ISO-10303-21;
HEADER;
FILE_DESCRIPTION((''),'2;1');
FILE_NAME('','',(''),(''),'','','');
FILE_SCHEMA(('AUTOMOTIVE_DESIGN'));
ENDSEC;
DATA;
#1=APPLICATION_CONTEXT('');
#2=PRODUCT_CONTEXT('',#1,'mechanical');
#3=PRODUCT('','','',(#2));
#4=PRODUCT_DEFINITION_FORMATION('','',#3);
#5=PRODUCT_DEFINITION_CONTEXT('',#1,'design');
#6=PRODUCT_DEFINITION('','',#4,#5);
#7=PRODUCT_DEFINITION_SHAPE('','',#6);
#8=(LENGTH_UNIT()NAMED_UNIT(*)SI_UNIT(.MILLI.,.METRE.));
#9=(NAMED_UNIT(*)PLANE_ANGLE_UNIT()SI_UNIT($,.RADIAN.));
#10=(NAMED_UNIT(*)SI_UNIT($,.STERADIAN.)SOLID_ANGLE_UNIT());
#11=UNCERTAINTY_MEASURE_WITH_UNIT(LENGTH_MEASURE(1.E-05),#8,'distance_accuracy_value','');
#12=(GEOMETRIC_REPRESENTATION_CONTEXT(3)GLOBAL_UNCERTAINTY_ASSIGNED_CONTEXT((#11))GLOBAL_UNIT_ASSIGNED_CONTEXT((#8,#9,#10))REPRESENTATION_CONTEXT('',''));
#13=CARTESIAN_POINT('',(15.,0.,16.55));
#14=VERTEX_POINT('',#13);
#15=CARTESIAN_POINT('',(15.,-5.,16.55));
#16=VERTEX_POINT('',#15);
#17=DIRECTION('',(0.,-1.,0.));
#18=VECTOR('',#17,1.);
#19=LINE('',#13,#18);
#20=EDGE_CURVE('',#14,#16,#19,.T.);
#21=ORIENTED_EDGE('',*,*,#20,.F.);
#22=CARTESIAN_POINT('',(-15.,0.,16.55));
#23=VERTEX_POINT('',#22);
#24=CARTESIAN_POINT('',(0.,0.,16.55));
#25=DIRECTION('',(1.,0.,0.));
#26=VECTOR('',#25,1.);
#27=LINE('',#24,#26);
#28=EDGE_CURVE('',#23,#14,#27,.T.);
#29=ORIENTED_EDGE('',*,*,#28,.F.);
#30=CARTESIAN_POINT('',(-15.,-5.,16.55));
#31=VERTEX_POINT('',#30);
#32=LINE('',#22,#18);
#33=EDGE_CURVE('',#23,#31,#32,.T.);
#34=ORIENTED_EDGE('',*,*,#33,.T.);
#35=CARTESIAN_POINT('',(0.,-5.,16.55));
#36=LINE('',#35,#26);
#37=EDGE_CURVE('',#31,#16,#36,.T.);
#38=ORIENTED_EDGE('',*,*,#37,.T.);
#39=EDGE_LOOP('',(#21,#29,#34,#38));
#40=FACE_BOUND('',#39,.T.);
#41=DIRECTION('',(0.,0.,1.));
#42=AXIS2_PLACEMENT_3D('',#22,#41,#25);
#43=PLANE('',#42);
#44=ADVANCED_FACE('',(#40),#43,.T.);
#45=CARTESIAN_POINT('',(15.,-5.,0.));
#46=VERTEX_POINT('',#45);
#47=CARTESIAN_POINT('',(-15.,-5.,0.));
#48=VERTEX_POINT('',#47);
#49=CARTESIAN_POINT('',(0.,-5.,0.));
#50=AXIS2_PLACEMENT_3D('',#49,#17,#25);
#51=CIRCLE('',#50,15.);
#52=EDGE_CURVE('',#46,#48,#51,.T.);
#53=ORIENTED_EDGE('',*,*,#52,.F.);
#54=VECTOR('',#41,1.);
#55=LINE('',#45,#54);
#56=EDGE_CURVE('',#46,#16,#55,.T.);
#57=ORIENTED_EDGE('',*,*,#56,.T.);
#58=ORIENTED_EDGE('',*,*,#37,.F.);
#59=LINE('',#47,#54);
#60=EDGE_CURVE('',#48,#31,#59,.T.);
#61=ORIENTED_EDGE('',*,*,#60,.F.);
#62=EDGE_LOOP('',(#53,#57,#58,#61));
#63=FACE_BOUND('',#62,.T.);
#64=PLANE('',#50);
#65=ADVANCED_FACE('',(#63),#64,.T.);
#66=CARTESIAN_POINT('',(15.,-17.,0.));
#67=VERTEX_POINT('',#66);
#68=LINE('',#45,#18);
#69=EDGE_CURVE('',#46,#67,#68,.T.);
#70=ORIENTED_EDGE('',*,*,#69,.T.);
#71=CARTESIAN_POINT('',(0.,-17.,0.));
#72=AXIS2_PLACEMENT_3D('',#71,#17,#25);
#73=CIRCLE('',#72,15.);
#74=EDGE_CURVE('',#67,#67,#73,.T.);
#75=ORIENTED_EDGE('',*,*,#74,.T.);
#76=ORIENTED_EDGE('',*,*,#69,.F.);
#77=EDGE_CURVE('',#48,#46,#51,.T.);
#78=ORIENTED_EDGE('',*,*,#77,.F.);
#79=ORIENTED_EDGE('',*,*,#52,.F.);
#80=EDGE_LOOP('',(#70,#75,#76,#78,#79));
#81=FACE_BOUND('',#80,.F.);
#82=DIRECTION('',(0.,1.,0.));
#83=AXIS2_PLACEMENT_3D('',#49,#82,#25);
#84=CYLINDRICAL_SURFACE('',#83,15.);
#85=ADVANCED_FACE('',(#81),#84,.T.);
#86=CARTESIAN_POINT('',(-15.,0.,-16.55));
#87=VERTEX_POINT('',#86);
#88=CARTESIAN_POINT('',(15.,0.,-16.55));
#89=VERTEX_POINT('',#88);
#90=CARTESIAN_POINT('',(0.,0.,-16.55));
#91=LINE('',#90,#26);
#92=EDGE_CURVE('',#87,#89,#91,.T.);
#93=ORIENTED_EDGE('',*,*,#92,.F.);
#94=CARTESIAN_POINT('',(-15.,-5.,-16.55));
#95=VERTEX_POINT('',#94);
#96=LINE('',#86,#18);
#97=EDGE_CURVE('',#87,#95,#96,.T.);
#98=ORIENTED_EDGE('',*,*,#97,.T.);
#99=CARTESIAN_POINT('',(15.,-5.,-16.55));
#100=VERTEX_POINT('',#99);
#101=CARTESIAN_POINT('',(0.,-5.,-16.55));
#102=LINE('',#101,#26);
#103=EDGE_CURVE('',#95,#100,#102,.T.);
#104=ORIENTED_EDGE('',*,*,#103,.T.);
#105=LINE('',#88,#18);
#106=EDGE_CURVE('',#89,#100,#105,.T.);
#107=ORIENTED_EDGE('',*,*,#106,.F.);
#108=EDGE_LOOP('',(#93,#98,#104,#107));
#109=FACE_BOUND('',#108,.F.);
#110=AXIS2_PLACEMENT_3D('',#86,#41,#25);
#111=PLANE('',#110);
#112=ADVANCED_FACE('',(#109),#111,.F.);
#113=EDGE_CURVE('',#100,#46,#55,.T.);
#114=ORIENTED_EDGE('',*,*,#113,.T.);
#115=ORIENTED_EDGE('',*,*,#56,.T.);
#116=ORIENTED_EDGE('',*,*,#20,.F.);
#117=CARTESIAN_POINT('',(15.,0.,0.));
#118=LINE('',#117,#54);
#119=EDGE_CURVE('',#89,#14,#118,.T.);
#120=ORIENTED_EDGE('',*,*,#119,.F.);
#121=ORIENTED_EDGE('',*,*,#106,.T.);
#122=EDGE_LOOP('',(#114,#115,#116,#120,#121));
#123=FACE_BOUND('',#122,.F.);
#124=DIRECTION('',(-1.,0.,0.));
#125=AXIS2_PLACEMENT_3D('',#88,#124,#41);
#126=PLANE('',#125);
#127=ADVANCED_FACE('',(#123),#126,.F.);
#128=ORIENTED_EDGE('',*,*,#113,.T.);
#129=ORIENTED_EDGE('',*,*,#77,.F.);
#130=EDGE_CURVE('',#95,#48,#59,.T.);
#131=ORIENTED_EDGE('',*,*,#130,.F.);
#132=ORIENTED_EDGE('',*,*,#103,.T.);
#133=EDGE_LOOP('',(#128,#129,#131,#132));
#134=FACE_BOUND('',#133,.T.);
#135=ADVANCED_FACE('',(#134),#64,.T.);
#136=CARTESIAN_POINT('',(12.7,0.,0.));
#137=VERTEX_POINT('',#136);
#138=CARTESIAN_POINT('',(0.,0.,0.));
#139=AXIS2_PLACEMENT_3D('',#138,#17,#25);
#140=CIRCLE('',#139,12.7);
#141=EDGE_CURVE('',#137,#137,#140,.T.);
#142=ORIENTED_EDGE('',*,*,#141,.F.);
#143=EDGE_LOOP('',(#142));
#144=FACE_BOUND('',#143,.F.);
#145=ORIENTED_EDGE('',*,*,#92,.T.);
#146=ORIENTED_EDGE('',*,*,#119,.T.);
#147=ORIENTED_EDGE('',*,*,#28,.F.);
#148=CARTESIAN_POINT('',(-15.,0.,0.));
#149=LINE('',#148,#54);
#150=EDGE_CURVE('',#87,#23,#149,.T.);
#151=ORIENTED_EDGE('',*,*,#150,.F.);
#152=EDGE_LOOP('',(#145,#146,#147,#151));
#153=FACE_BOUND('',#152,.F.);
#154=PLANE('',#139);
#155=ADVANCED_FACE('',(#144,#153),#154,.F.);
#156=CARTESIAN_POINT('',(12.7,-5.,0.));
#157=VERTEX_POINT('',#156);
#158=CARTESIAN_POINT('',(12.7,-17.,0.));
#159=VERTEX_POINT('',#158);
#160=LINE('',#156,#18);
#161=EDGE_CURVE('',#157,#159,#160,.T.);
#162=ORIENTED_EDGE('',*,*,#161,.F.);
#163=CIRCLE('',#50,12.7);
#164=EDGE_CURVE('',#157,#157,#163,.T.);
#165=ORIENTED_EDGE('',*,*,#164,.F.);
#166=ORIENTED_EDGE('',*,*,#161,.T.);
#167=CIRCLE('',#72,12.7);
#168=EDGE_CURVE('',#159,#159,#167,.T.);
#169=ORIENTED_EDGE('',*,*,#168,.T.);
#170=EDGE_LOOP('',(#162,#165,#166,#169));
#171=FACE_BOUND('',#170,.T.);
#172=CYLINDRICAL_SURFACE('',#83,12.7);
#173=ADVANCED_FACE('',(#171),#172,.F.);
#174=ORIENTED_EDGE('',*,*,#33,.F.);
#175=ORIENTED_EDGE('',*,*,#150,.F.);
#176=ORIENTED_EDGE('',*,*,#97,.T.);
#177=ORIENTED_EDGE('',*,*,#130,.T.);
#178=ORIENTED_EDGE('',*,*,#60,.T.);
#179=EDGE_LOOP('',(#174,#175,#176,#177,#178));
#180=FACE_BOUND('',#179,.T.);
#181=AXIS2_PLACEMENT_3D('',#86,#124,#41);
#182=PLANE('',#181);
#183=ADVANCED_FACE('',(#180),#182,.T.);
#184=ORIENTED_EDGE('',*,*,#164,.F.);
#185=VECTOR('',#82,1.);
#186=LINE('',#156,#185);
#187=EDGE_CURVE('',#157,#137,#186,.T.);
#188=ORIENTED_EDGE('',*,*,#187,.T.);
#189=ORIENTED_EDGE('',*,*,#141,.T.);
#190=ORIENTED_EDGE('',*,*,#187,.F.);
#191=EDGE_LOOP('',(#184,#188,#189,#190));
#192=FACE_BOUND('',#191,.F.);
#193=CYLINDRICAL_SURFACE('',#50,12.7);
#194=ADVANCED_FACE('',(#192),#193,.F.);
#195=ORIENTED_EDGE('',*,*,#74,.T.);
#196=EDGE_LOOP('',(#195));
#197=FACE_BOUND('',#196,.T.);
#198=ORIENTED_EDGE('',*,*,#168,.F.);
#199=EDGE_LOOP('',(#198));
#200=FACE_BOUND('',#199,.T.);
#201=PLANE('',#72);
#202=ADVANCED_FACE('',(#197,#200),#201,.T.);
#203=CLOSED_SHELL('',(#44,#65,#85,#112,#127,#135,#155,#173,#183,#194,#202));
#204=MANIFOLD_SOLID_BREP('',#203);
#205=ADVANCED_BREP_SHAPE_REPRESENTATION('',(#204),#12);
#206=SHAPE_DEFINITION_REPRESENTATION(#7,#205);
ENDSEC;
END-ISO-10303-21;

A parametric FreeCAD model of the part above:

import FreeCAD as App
import Part
import Sketcher
from FreeCAD import Vector
Q = App.Units.Quantity


def add_polygon(sketch, points):
    """Adds a closed chain of lines whose ends are joined by coincident constraints."""
    first, n = sketch.GeometryCount, len(points)
    for a, b in zip(points, points[1:] + points[:1]):
        sketch.addGeometry(Part.LineSegment(App.Vector(*a, 0), App.Vector(*b, 0)), False)
    for i in range(n):
        sketch.addConstraint(Sketcher.Constraint("Coincident", first + i, 2, first + (i + 1) % n, 1))

doc = App.newDocument("Part")
params = doc.addObject("Spreadsheet::Sheet", "Params")
for row, (alias, value) in enumerate([
    ("sketch1_width", "30 mm"),
    ("sketch1_height", "33.1 mm"),
    ("pad1_length", "5 mm"),
    ("sketch2_diameter", "30 mm"),
    ("sketch2_diameter2", "25.4 mm"),
    ("pad2_length", "12 mm"),
    ("sketch3_diameter", "25.4 mm"),
    ("pocket1_length", "25 mm"),
], start=1):
    params.set(f"A{row}", alias)
    params.set(f"B{row}", "=" + value)
    params.setAlias(f"B{row}", alias)

body = doc.addObject("PartDesign::Body", "Body")

sketch1 = doc.addObject("Sketcher::SketchObject", "Sketch")
body.addObject(sketch1)
sketch1.AttachmentSupport = (doc.XZ_Plane, [""])
sketch1.MapMode = "FlatFace"
add_polygon(sketch1, [(-15, 16.55), (-15, -16.55), (15, -16.55), (15, 16.55)])
sketch1.addConstraint([
    Sketcher.Constraint("Vertical", 0),
    Sketcher.Constraint("Horizontal", 1),
    Sketcher.Constraint("Vertical", 2),
    Sketcher.Constraint("Horizontal", 3),
    Sketcher.Constraint("Symmetric", 0, 2, 2, 2, -1, 1),
    Sketcher.Constraint("DistanceX", 1, 1, 1, 2, Q("30 mm")),
    Sketcher.Constraint("DistanceY", 0, 2, 0, 1, Q("33.1 mm")),
])
sketch1.setExpression("Constraints[9]", "Params.sketch1_width")
sketch1.setExpression("Constraints[10]", "Params.sketch1_height")
pad1 = doc.addObject("PartDesign::Pad", "Pad")
body.addObject(pad1)
pad1.Profile = sketch1
pad1.setExpression("Length", "Params.pad1_length")

sketch2 = doc.addObject("Sketcher::SketchObject", "Sketch001")
body.addObject(sketch2)
sketch2.AttachmentSupport = (doc.XZ_Plane, [""])
sketch2.MapMode = "FlatFace"
sketch2.AttachmentOffset = App.Placement(Vector(0, 0, 5), App.Rotation())
sketch2.addGeometry([
    Part.Circle(Vector(0, 0, 0), Vector(0, 0, 1), 15),
    Part.Circle(Vector(0, 0, 0), Vector(0, 0, 1), 12.7),
], False)
sketch2.addConstraint([
    Sketcher.Constraint("Coincident", 0, 3, -1, 1),
    Sketcher.Constraint("Coincident", 1, 3, -1, 1),
    Sketcher.Constraint("Diameter", 0, Q("30 mm")),
    Sketcher.Constraint("Diameter", 1, Q("25.4 mm")),
])
sketch2.setExpression("Constraints[2]", "Params.sketch2_diameter")
sketch2.setExpression("Constraints[3]", "Params.sketch2_diameter2")
pad2 = doc.addObject("PartDesign::Pad", "Pad001")
body.addObject(pad2)
pad2.Profile = sketch2
pad2.setExpression("Length", "Params.pad2_length")

sketch3 = doc.addObject("Sketcher::SketchObject", "Sketch002")
body.addObject(sketch3)
sketch3.AttachmentSupport = (doc.XZ_Plane, [""])
sketch3.MapMode = "FlatFace"
sketch3.AttachmentOffset = App.Placement(Vector(0, 0, 5), App.Rotation())
sketch3.addGeometry(Part.Circle(Vector(0, 0, 0), Vector(0, 0, 1), 12.7), False)
sketch3.addConstraint([
    Sketcher.Constraint("Coincident", 0, 3, -1, 1),
    Sketcher.Constraint("Diameter", 0, Q("25.4 mm")),
])
sketch3.setExpression("Constraints[1]", "Params.sketch3_diameter")
pocket1 = doc.addObject("PartDesign::Pocket", "Pocket")
body.addObject(pocket1)
pocket1.Profile = sketch3
pocket1.setExpression("Length", "Params.pocket1_length")

doc.recompute()
